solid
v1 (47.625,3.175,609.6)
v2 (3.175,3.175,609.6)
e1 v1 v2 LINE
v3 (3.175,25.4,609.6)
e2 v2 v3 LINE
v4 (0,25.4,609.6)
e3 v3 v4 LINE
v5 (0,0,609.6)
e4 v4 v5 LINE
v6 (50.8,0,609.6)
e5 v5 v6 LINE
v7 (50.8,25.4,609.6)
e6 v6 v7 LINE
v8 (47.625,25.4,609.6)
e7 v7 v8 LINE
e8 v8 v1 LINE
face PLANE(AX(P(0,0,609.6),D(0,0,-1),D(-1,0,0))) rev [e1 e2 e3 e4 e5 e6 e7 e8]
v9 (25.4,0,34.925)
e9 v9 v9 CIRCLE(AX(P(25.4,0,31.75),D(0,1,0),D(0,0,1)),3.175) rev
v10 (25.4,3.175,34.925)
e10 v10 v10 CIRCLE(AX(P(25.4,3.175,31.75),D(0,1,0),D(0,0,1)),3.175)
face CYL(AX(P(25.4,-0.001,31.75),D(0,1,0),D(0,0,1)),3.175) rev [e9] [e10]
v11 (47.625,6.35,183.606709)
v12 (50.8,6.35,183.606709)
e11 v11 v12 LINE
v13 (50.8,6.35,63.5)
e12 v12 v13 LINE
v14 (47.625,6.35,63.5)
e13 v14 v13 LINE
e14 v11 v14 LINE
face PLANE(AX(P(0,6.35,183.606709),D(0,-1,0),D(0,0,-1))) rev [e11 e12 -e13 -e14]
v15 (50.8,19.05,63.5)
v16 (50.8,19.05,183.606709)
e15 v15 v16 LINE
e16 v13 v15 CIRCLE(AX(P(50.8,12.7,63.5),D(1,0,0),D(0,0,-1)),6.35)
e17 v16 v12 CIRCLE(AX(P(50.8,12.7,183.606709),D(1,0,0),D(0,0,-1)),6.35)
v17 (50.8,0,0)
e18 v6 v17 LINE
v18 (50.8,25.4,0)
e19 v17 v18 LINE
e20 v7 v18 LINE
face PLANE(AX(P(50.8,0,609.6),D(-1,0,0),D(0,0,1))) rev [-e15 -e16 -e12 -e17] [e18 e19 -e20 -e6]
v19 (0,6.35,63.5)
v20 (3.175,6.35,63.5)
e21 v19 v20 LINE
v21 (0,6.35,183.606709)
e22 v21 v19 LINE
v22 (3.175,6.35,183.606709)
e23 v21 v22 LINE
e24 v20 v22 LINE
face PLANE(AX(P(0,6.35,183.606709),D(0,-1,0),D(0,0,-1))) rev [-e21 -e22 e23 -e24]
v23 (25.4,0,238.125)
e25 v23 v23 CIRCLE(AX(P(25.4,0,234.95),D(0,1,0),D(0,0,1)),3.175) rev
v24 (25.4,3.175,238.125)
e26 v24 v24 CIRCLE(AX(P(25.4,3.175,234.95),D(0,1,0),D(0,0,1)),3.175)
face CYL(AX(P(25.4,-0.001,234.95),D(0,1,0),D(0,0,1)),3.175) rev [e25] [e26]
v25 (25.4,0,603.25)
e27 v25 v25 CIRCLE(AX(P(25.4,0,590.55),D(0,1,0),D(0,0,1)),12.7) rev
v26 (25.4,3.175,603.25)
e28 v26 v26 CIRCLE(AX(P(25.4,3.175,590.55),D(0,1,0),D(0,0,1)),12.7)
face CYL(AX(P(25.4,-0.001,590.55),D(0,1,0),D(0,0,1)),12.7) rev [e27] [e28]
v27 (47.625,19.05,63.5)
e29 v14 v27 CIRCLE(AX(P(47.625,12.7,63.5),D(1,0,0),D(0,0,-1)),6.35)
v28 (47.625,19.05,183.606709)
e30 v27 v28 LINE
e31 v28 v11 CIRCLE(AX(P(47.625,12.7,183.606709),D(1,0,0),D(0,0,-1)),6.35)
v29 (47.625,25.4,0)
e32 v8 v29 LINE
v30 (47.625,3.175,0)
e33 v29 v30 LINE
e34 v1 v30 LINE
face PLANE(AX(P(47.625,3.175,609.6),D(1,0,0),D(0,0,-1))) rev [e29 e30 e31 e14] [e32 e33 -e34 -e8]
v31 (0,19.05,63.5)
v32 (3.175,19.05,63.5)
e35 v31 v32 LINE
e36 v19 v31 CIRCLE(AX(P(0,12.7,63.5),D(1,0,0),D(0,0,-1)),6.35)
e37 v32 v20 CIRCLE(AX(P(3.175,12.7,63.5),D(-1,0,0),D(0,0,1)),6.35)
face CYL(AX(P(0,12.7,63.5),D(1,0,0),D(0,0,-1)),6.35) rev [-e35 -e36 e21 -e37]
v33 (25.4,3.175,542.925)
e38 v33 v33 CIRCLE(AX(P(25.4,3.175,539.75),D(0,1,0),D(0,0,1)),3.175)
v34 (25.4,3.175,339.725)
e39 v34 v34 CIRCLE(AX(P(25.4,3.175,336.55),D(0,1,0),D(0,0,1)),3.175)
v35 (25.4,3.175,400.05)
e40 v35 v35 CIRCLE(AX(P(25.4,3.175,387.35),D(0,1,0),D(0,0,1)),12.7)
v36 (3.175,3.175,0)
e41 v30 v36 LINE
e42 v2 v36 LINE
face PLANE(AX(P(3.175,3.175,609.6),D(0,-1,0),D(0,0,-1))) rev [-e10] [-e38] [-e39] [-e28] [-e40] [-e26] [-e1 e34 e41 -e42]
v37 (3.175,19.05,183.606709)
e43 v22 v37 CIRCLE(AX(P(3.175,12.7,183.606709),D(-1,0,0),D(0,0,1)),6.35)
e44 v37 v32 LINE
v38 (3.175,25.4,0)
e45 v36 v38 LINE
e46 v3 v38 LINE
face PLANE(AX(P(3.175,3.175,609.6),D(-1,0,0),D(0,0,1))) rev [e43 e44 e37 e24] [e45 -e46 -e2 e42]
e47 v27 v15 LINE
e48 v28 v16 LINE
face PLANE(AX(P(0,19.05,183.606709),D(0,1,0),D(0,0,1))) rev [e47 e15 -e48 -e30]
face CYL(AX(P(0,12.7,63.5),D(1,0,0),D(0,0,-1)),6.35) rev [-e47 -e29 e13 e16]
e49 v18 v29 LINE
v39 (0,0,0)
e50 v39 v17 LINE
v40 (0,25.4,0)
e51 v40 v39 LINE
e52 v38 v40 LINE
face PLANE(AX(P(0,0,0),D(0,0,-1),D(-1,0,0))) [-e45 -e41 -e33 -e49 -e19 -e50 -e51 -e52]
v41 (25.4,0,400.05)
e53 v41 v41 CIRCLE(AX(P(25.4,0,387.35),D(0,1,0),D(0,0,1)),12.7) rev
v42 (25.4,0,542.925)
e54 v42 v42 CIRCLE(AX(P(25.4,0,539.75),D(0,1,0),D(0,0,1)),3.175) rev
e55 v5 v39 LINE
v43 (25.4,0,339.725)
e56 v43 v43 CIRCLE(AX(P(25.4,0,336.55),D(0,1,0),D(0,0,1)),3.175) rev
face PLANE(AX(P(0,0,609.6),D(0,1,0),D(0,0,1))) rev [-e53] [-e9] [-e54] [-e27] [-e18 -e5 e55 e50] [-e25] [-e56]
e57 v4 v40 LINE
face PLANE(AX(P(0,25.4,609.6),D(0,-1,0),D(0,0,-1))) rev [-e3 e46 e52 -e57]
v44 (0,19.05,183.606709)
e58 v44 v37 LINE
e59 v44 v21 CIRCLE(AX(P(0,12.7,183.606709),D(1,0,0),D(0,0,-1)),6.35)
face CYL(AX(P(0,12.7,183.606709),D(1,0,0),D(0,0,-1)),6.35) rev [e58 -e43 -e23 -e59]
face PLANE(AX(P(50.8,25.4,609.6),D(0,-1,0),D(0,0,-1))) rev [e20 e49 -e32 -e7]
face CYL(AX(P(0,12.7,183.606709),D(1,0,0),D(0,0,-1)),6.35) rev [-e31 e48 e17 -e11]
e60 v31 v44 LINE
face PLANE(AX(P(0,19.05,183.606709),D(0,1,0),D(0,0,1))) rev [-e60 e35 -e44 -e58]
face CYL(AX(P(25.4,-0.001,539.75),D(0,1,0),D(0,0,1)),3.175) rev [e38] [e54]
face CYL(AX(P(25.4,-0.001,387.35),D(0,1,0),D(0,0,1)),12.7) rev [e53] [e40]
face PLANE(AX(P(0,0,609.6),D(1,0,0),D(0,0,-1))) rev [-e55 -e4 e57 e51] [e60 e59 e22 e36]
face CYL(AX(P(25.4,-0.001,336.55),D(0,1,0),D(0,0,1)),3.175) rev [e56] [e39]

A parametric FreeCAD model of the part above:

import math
import FreeCAD as App
import Part
import Sketcher
Q = App.Units.Quantity

doc = App.newDocument("Part")
body = doc.addObject("PartDesign::Body", "Body")

# Sketch on XY plane
sketch1 = doc.addObject("Sketcher::SketchObject", "Sketch")
body.addObject(sketch1)
sketch1.AttachmentSupport = (doc.XY_Plane, [""])
sketch1.MapMode = "FlatFace"
sketch1.addGeometry(Part.LineSegment(App.Vector(47.625, 25.4, 0), App.Vector(47.625, 3.175, 0)), False)
sketch1.addGeometry(Part.LineSegment(App.Vector(47.625, 3.175, 0), App.Vector(3.175, 3.175, 0)), False)
sketch1.addGeometry(Part.LineSegment(App.Vector(3.175, 3.175, 0), App.Vector(3.175, 25.4, 0)), False)
sketch1.addGeometry(Part.LineSegment(App.Vector(3.175, 25.4, 0), App.Vector(0, 25.4, 0)), False)
sketch1.addGeometry(Part.LineSegment(App.Vector(0, 25.4, 0), App.Vector(0, 0, 0)), False)
sketch1.addGeometry(Part.LineSegment(App.Vector(0, 0, 0), App.Vector(50.8, 0, 0)), False)
sketch1.addGeometry(Part.LineSegment(App.Vector(50.8, 0, 0), App.Vector(50.8, 25.4, 0)), False)
sketch1.addGeometry(Part.LineSegment(App.Vector(50.8, 25.4, 0), App.Vector(47.625, 25.4, 0)), False)
sketch1.addConstraint(Sketcher.Constraint("Coincident", 0, 2, 1, 1))
sketch1.addConstraint(Sketcher.Constraint("Coincident", 1, 2, 2, 1))
sketch1.addConstraint(Sketcher.Constraint("Coincident", 2, 2, 3, 1))
sketch1.addConstraint(Sketcher.Constraint("Coincident", 3, 2, 4, 1))
sketch1.addConstraint(Sketcher.Constraint("Coincident", 4, 2, 5, 1))
sketch1.addConstraint(Sketcher.Constraint("Coincident", 5, 2, 6, 1))
sketch1.addConstraint(Sketcher.Constraint("Coincident", 6, 2, 7, 1))
sketch1.addConstraint(Sketcher.Constraint("Coincident", 7, 2, 0, 1))
sketch1.addConstraint(Sketcher.Constraint("Vertical", 0))
sketch1.addConstraint(Sketcher.Constraint("Horizontal", 1))
sketch1.addConstraint(Sketcher.Constraint("Vertical", 2))
sketch1.addConstraint(Sketcher.Constraint("Horizontal", 3))
sketch1.addConstraint(Sketcher.Constraint("Vertical", 4))
sketch1.addConstraint(Sketcher.Constraint("Horizontal", 5))
sketch1.addConstraint(Sketcher.Constraint("Vertical", 6))
sketch1.addConstraint(Sketcher.Constraint("Horizontal", 7))
sketch1.addConstraint(Sketcher.Constraint("Coincident", 4, 2, -1, 1))
sketch1.addConstraint(Sketcher.Constraint("Horizontal", 3, 2, 6, 2))
sketch1.addConstraint(Sketcher.Constraint("Equal", 3, 7))
sketch1.addConstraint(Sketcher.Constraint("DistanceX", 5, 1, 5, 2, Q("2 in")))
sketch1.addConstraint(Sketcher.Constraint("DistanceY", 4, 2, 4, 1, Q("1 in")))
sketch1.addConstraint(Sketcher.Constraint("DistanceX", 1, 2, 1, 1, Q("1.75 in")))
sketch1.addConstraint(Sketcher.Constraint("DistanceY", 0, 2, 0, 1, Q("0.875 in")))
pad1 = doc.addObject("PartDesign::Pad", "Pad")
body.addObject(pad1)
pad1.Profile = sketch1
pad1.Length = Q("24 in")

# Sketch on XZ plane
sketch2 = doc.addObject("Sketcher::SketchObject", "Sketch001")
body.addObject(sketch2)
sketch2.AttachmentSupport = (doc.XZ_Plane, [""])
sketch2.MapMode = "FlatFace"
sketch2.AttachmentOffset = App.Placement(App.Vector(0, 0, -0.125 * 25.4), App.Rotation())
sketch2.addGeometry(Part.Circle(App.Vector(25.4, 590.55, 0), App.Vector(0, 0, 1), 12.7), False)
sketch2.addConstraint(Sketcher.Constraint("Diameter", 0, Q("1 in")))
sketch2.addConstraint(Sketcher.Constraint("DistanceX", -1, 1, 0, 3, Q("1 in")))
sketch2.addConstraint(Sketcher.Constraint("DistanceY", -1, 1, 0, 3, Q("23.25 in")))
pocket1 = doc.addObject("PartDesign::Pocket", "Pocket")
body.addObject(pocket1)
pocket1.Profile = sketch2
pocket1.Type = "UpToFirst"
pocket1.Reversed = True

# Sketch on XZ plane
sketch3 = doc.addObject("Sketcher::SketchObject", "Sketch002")
body.addObject(sketch3)
sketch3.AttachmentSupport = (doc.XZ_Plane, [""])
sketch3.MapMode = "FlatFace"
sketch3.AttachmentOffset = App.Placement(App.Vector(0, 0, -0.125 * 25.4), App.Rotation())
sketch3.addGeometry(Part.Circle(App.Vector(25.4, 387.35, 0), App.Vector(0, 0, 1), 12.7), False)
sketch3.addConstraint(Sketcher.Constraint("Diameter", 0, Q("1 in")))
sketch3.addConstraint(Sketcher.Constraint("DistanceX", -1, 1, 0, 3, Q("1 in")))
sketch3.addConstraint(Sketcher.Constraint("DistanceY", -1, 1, 0, 3, Q("15.25 in")))
pocket2 = doc.addObject("PartDesign::Pocket", "Pocket001")
body.addObject(pocket2)
pocket2.Profile = sketch3
pocket2.Type = "UpToFirst"
pocket2.Reversed = True

# Sketch on XZ plane
sketch4 = doc.addObject("Sketcher::SketchObject", "Sketch003")
body.addObject(sketch4)
sketch4.AttachmentSupport = (doc.XZ_Plane, [""])
sketch4.MapMode = "FlatFace"
sketch4.AttachmentOffset = App.Placement(App.Vector(0, 0, -0.125 * 25.4), App.Rotation())
sketch4.addGeometry(Part.Circle(App.Vector(25.4, 539.75, 0), App.Vector(0, 0, 1), 3.175), False)
sketch4.addConstraint(Sketcher.Constraint("Diameter", 0, Q("0.25 in")))
sketch4.addConstraint(Sketcher.Constraint("DistanceX", -1, 1, 0, 3, Q("1 in")))
sketch4.addConstraint(Sketcher.Constraint("DistanceY", -1, 1, 0, 3, Q("21.25 in")))
pocket3 = doc.addObject("PartDesign::Pocket", "Pocket002")
body.addObject(pocket3)
pocket3.Profile = sketch4
pocket3.Type = "UpToFirst"
pocket3.Reversed = True

# Sketch on XZ plane
sketch5 = doc.addObject("Sketcher::SketchObject", "Sketch004")
body.addObject(sketch5)
sketch5.AttachmentSupport = (doc.XZ_Plane, [""])
sketch5.MapMode = "FlatFace"
sketch5.AttachmentOffset = App.Placement(App.Vector(0, 0, -0.125 * 25.4), App.Rotation())
sketch5.addGeometry(Part.Circle(App.Vector(25.4, 336.55, 0), App.Vector(0, 0, 1), 3.175), False)
sketch5.addConstraint(Sketcher.Constraint("Diameter", 0, Q("0.25 in")))
sketch5.addConstraint(Sketcher.Constraint("DistanceX", -1, 1, 0, 3, Q("1 in")))
sketch5.addConstraint(Sketcher.Constraint("DistanceY", -1, 1, 0, 3, Q("13.25 in")))
pocket4 = doc.addObject("PartDesign::Pocket", "Pocket003")
body.addObject(pocket4)
pocket4.Profile = sketch5
pocket4.Type = "UpToFirst"
pocket4.Reversed = True

# Sketch on XZ plane
sketch6 = doc.addObject("Sketcher::SketchObject", "Sketch005")
body.addObject(sketch6)
sketch6.AttachmentSupport = (doc.XZ_Plane, [""])
sketch6.MapMode = "FlatFace"
sketch6.AttachmentOffset = App.Placement(App.Vector(0, 0, -0.125 * 25.4), App.Rotation())
sketch6.addGeometry(Part.Circle(App.Vector(25.4, 234.95, 0), App.Vector(0, 0, 1), 3.175), False)
sketch6.addConstraint(Sketcher.Constraint("Diameter", 0, Q("0.25 in")))
sketch6.addConstraint(Sketcher.Constraint("DistanceX", -1, 1, 0, 3, Q("1 in")))
sketch6.addConstraint(Sketcher.Constraint("DistanceY", -1, 1, 0, 3, Q("9.25 in")))
pocket5 = doc.addObject("PartDesign::Pocket", "Pocket004")
body.addObject(pocket5)
pocket5.Profile = sketch6
pocket5.Type = "UpToFirst"
pocket5.Reversed = True

# Sketch on XZ plane
sketch7 = doc.addObject("Sketcher::SketchObject", "Sketch006")
body.addObject(sketch7)
sketch7.AttachmentSupport = (doc.XZ_Plane, [""])
sketch7.MapMode = "FlatFace"
sketch7.AttachmentOffset = App.Placement(App.Vector(0, 0, -0.125 * 25.4), App.Rotation())
sketch7.addGeometry(Part.Circle(App.Vector(25.4, 31.75, 0), App.Vector(0, 0, 1), 3.175), False)
sketch7.addConstraint(Sketcher.Constraint("Diameter", 0, Q("0.25 in")))
sketch7.addConstraint(Sketcher.Constraint("DistanceX", -1, 1, 0, 3, Q("1 in")))
sketch7.addConstraint(Sketcher.Constraint("DistanceY", -1, 1, 0, 3, Q("1.25 in")))
pocket6 = doc.addObject("PartDesign::Pocket", "Pocket005")
body.addObject(pocket6)
pocket6.Profile = sketch7
pocket6.Type = "UpToFirst"
pocket6.Reversed = True

# Sketch on YZ plane
sketch8 = doc.addObject("Sketcher::SketchObject", "Sketch007")
body.addObject(sketch8)
sketch8.AttachmentSupport = (doc.YZ_Plane, [""])
sketch8.MapMode = "FlatFace"
sketch8.AttachmentOffset = App.Placement(App.Vector(0, 0, 2 * 25.4), App.Rotation())
sketch8.addGeometry(Part.LineSegment(App.Vector(19.05, 63.5, 0), App.Vector(19.05, 183.606709, 0)), False)
sketch8.addGeometry(Part.ArcOfCircle(Part.Circle(App.Vector(12.7, 183.606709, 0), App.Vector(0, 0, 1), 6.35), math.radians(0), math.radians(180)), False)
sketch8.addGeometry(Part.LineSegment(App.Vector(6.35, 183.606709, 0), App.Vector(6.35, 63.5, 0)), False)
sketch8.addGeometry(Part.ArcOfCircle(Part.Circle(App.Vector(12.7, 63.5, 0), App.Vector(0, 0, 1), 6.35), math.radians(180), math.radians(360)), False)
sketch8.addConstraint(Sketcher.Constraint("Tangent", 0, 2, 1, 1))
sketch8.addConstraint(Sketcher.Constraint("Tangent", 1, 2, 2, 1))
sketch8.addConstraint(Sketcher.Constraint("Tangent", 2, 2, 3, 1))
sketch8.addConstraint(Sketcher.Constraint("Tangent", 3, 2, 0, 1))
sketch8.addConstraint(Sketcher.Constraint("Vertical", 0))
sketch8.addConstraint(Sketcher.Constraint("Vertical", 2))
sketch8.addConstraint(Sketcher.Constraint("Radius", 1, Q("0.25 in")))
sketch8.addConstraint(Sketcher.Constraint("DistanceX", -1, 1, 1, 3, Q("0.5 in")))
sketch8.addConstraint(Sketcher.Constraint("DistanceY", -1, 1, 3, 3, Q("2.5 in")))
sketch8.addConstraint(Sketcher.Constraint("DistanceY", 0, 1, 0, 2, Q("120.106709 mm")))
pocket7 = doc.addObject("PartDesign::Pocket", "Pocket006")
body.addObject(pocket7)
pocket7.Profile = sketch8
pocket7.Type = "ThroughAll"

doc.recompute()
